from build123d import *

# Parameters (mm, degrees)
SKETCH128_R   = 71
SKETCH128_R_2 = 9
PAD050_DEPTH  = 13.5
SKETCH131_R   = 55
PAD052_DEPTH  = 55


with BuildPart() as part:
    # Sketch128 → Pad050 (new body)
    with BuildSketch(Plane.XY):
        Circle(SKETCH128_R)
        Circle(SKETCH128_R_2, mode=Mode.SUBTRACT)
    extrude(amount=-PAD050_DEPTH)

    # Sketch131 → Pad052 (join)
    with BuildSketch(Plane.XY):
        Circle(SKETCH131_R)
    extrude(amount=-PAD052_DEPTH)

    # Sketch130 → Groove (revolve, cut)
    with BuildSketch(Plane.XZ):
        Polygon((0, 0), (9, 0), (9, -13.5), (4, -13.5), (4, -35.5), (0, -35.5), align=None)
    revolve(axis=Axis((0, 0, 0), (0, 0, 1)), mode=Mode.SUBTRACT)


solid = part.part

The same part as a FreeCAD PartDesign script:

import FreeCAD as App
import Part
import Sketcher
Q = App.Units.Quantity


def add_polygon(sketch, points):
    """Adds a closed chain of lines whose ends are joined by coincident constraints."""
    first, n = sketch.GeometryCount, len(points)
    for a, b in zip(points, points[1:] + points[:1]):
        sketch.addGeometry(Part.LineSegment(App.Vector(*a, 0), App.Vector(*b, 0)), False)
    for i in range(n):
        sketch.addConstraint(Sketcher.Constraint("Coincident", first + i, 2, first + (i + 1) % n, 1))

doc = App.newDocument("Part")
params = doc.addObject("Spreadsheet::Sheet", "Params")
for row, (alias, value) in enumerate([
    ("sketch1_diameter", "142 mm"),
    ("sketch1_diameter2", "18 mm"),
    ("pad1_length", "13.5 mm"),
    ("sketch2_diameter", "110 mm"),
    ("pad2_length", "55 mm"),
    ("sketch3_width", "9 mm"),
    ("sketch3_width2", "4 mm"),
    ("sketch3_height", "22 mm"),
    ("sketch3_height2", "35.5 mm"),
    ("groove_angle", "360 deg"),
], start=1):
    params.set(f"A{row}", alias)
    params.set(f"B{row}", "=" + value)
    params.setAlias(f"B{row}", alias)

body = doc.addObject("PartDesign::Body", "Body")

# Sketch on XY plane
sketch1 = body.newObject("Sketcher::SketchObject", "Sketch")
sketch1.AttachmentSupport = (doc.getObject("XY_Plane"), [""])
sketch1.MapMode = "FlatFace"
sketch1.addGeometry([
    Part.Circle(App.Vector(0, 0, 0), App.Vector(0, 0, 1), 71),
    Part.Circle(App.Vector(0, 0, 0), App.Vector(0, 0, 1), 9),
], False)
sketch1.addConstraint([
    Sketcher.Constraint("Coincident", 0, 3, -1, 1),
    Sketcher.Constraint("Coincident", 1, 3, -1, 1),
    Sketcher.Constraint("Diameter", 0, Q("142 mm")),
    Sketcher.Constraint("Diameter", 1, Q("18 mm")),
])
sketch1.setExpression("Constraints[2]", "Params.sketch1_diameter")
sketch1.setExpression("Constraints[3]", "Params.sketch1_diameter2")
pad1 = body.newObject("PartDesign::Pad", "Pad")
pad1.Profile = sketch1
pad1.setExpression("Length", "Params.pad1_length")
pad1.Reversed = True

# Sketch on XY plane
sketch2 = body.newObject("Sketcher::SketchObject", "Sketch001")
sketch2.AttachmentSupport = (doc.getObject("XY_Plane"), [""])
sketch2.MapMode = "FlatFace"
sketch2.addGeometry(Part.Circle(App.Vector(0, 0, 0), App.Vector(0, 0, 1), 55), False)
sketch2.addConstraint([
    Sketcher.Constraint("Coincident", 0, 3, -1, 1),
    Sketcher.Constraint("Diameter", 0, Q("110 mm")),
])
sketch2.setExpression("Constraints[1]", "Params.sketch2_diameter")
pad2 = body.newObject("PartDesign::Pad", "Pad001")
pad2.Profile = sketch2
pad2.setExpression("Length", "Params.pad2_length")
pad2.Reversed = True

# Sketch on XZ plane
sketch3 = body.newObject("Sketcher::SketchObject", "Sketch002")
sketch3.AttachmentSupport = (doc.getObject("XZ_Plane"), [""])
sketch3.MapMode = "FlatFace"
add_polygon(sketch3, [(9, 0), (0, 0), (0, -35.5), (4, -35.5), (4, -13.5), (9, -13.5)])  # lines 0-5
sketch3.addConstraint([
    Sketcher.Constraint("Horizontal", 0),
    Sketcher.Constraint("Vertical", 1),
    Sketcher.Constraint("Horizontal", 2),
    Sketcher.Constraint("Vertical", 3),
    Sketcher.Constraint("Horizontal", 4),
    Sketcher.Constraint("Vertical", 5),
    Sketcher.Constraint("Coincident", 0, 2, -1, 1),
    Sketcher.Constraint("DistanceX", 0, 2, 0, 1, Q("9 mm")),
    Sketcher.Constraint("DistanceX", 2, 1, 2, 2, Q("4 mm")),
    Sketcher.Constraint("DistanceY", 3, 1, 3, 2, Q("22 mm")),
    Sketcher.Constraint("DistanceY", 1, 2, 1, 1, Q("35.5 mm")),
])
sketch3.setExpression("Constraints[13]", "Params.sketch3_width")
sketch3.setExpression("Constraints[14]", "Params.sketch3_width2")
sketch3.setExpression("Constraints[15]", "Params.sketch3_height")
sketch3.setExpression("Constraints[16]", "Params.sketch3_height2")
groove = body.newObject("PartDesign::Groove", "Groove")
groove.Profile = sketch3
groove.ReferenceAxis = (sketch3, ["V_Axis"])
groove.setExpression("Angle", "Params.groove_angle")

doc.recompute()
